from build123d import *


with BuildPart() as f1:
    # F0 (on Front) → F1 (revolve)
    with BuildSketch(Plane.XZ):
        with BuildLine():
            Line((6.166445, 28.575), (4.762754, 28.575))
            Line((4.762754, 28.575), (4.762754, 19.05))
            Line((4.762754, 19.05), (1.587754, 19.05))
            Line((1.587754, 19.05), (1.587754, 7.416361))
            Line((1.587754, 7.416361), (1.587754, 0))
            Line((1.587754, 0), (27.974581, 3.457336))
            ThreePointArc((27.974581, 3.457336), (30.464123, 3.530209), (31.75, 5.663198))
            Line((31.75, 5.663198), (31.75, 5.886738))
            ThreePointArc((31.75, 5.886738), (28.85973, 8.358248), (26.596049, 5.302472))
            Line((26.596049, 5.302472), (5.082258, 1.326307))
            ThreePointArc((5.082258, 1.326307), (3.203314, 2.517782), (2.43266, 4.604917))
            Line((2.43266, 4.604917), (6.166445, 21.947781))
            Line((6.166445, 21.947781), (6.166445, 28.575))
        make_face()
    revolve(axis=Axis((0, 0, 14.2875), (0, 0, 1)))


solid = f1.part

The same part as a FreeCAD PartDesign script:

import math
import FreeCAD as App
import Part
import Sketcher

V = App.Vector
Q = App.Units.Quantity

doc = App.newDocument("Part")
body = doc.addObject("PartDesign::Body", "Body")

# Sketch on XZ plane
sketch1 = doc.addObject("Sketcher::SketchObject", "Sketch")
body.addObject(sketch1)
sketch1.AttachmentSupport = (doc.XZ_Plane, [""])
sketch1.MapMode = "FlatFace"
sketch1.addGeometry([
    Part.LineSegment(V(6.17, 28.57, 0), V(4.76, 28.57, 0)),  # 0
    Part.LineSegment(V(4.76, 28.57, 0), V(4.76, 19.05, 0)),  # 1
    Part.LineSegment(V(4.76, 19.05, 0), V(1.59, 19.05, 0)),  # 2
    Part.LineSegment(V(1.59, 19.05, 0), V(1.59, 0, 0)),  # 3
    Part.LineSegment(V(1.59, 0, 0), V(27.97, 3.46, 0)),  # 4
    Part.ArcOfCircle(Part.Circle(V(29.15, 5.77, 0), V(0, 0, 1), 2.6), math.radians(-117), math.radians(-2)),  # 5
    Part.LineSegment(V(31.75, 5.66, 0), V(31.75, 5.89, 0)),  # 6
    Part.ArcOfCircle(Part.Circle(V(29.15, 5.77, 0), V(0, 0, 1), 2.6), math.radians(2), math.radians(190)),  # 7
    Part.LineSegment(V(26.6, 5.3, 0), V(5.08, 1.33, 0)),  # 8
    Part.ArcOfCircle(Part.Circle(V(5.91, 4.7, 0), V(0, 0, 1), 3.47), math.radians(-178), math.radians(-104)),  # 9
    Part.LineSegment(V(2.43, 4.6, 0), V(6.17, 21.95, 0)),  # 10
    Part.LineSegment(V(6.17, 21.95, 0), V(6.17, 28.57, 0)),  # 11
], False)
sketch1.addConstraint([
    Sketcher.Constraint("Coincident", 0, 2, 1, 1),
    Sketcher.Constraint("Coincident", 1, 2, 2, 1),
    Sketcher.Constraint("Coincident", 2, 2, 3, 1),
    Sketcher.Constraint("Coincident", 3, 2, 4, 1),
    Sketcher.Constraint("Coincident", 4, 2, 5, 1),
    Sketcher.Constraint("Coincident", 5, 2, 6, 1),
    Sketcher.Constraint("Coincident", 6, 2, 7, 1),
    Sketcher.Constraint("Coincident", 7, 2, 8, 1),
    Sketcher.Constraint("Coincident", 8, 2, 9, 2),
    Sketcher.Constraint("Coincident", 9, 1, 10, 1),
    Sketcher.Constraint("Coincident", 10, 2, 11, 1),
    Sketcher.Constraint("Coincident", 11, 2, 0, 1),
    Sketcher.Constraint("Horizontal", 0),
    Sketcher.Constraint("Vertical", 1),
    Sketcher.Constraint("Horizontal", 2),
    Sketcher.Constraint("Vertical", 3),
    Sketcher.Constraint("Vertical", 6),
    Sketcher.Constraint("Vertical", 11),
    Sketcher.Constraint("Coincident", 7, 3, 5, 3),
    Sketcher.Constraint("Equal", 5, 7),
    Sketcher.Constraint("PointOnObject", 3, 2, -1),
    Sketcher.Constraint("DistanceY", 3, 2, 3, 1, Q("0.75 in")),
    Sketcher.Constraint("DistanceX", 2, 2, 2, 1, Q("0.125 in")),
    Sketcher.Constraint("DistanceY", 1, 2, 1, 1, Q("0.375 in")),
    Sketcher.Constraint("DistanceX", -1, 1, 5, 2, Q("1.25 in")),
    Sketcher.Constraint("Radius", 9, Q("3.473809 mm")),
    Sketcher.Constraint("Radius", 5, Q("2.599826 mm")),
    Sketcher.Constraint("DistanceX", 0, 2, 0, 1, Q("1.403691 mm")),
    Sketcher.Constraint("DistanceY", 6, 1, 6, 2, Q("0.22354 mm")),
    Sketcher.Constraint("DistanceY", 11, 1, 11, 2, Q("6.627219 mm")),
    Sketcher.Constraint("DistanceX", 9, 1, 8, 2, Q("2.649598 mm")),
    Sketcher.Constraint("Distance", 8, Q("21.878142 mm")),
    Sketcher.Constraint("Distance", 10, Q("17.740239 mm")),
    Sketcher.Constraint("DistanceY", -1, 1, 5, 3, Q("5.774968 mm")),
    Sketcher.Constraint("DistanceX", -1, 1, 4, 2, Q("27.974581 mm")),
    Sketcher.Constraint("DistanceX", -1, 1, 7, 2, Q("26.596049 mm")),
    Sketcher.Constraint("DistanceX", -1, 1, 8, 2, Q("5.082258 mm")),
    Sketcher.Constraint("DistanceX", 0, 2, 9, 3, Q("1.142379 mm")),
])
revolution = doc.addObject("PartDesign::Revolution", "Revolution")
body.addObject(revolution)
revolution.Profile = sketch1
revolution.ReferenceAxis = (sketch1, ["V_Axis"])
revolution.Angle = 360

doc.recompute()
